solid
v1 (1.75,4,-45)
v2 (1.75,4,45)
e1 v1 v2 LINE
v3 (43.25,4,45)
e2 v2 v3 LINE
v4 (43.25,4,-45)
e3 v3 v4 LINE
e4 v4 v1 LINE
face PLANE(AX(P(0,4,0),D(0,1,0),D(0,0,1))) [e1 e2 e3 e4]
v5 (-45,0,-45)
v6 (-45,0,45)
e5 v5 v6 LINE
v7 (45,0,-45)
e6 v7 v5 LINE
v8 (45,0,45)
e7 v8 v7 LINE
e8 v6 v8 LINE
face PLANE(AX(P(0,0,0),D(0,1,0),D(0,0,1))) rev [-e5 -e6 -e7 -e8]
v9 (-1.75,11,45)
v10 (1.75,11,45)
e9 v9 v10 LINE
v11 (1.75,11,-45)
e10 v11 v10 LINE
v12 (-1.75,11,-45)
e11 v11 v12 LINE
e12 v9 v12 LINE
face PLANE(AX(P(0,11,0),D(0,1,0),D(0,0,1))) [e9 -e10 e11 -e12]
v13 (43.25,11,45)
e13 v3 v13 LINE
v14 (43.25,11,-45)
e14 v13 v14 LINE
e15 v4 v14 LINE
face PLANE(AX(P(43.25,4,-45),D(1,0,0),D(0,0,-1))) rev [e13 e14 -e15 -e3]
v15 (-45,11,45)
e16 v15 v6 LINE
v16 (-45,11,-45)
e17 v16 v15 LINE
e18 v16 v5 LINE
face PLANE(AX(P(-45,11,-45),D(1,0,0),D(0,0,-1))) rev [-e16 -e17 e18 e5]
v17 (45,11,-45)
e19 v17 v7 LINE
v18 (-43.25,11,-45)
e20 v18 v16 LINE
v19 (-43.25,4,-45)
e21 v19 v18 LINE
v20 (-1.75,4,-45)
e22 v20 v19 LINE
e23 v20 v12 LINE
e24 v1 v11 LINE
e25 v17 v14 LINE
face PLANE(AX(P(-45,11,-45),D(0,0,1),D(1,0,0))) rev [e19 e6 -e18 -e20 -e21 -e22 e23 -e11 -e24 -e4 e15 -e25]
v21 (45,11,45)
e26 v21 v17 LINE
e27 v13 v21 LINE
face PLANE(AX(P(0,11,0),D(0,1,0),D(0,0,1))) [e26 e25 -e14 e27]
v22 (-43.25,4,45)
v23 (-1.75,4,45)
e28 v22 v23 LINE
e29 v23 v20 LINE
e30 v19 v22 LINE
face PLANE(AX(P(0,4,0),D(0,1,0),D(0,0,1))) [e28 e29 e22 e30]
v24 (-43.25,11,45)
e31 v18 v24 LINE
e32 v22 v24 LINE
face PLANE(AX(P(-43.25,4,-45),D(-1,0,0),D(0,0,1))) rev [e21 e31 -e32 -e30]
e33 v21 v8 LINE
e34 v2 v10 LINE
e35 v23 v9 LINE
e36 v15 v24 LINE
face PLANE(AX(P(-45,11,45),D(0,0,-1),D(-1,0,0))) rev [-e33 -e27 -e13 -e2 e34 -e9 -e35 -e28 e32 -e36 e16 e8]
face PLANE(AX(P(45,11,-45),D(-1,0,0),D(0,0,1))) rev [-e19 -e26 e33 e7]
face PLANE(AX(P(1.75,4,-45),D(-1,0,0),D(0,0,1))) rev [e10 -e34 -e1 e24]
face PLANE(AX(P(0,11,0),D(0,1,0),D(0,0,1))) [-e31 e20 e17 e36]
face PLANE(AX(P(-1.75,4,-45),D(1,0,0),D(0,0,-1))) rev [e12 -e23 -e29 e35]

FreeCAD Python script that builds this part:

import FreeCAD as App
import Part
import Sketcher
Q = App.Units.Quantity


def add_polygon(sketch, points):
    """Adds a closed chain of lines whose ends are joined by coincident constraints."""
    first, n = sketch.GeometryCount, len(points)
    for a, b in zip(points, points[1:] + points[:1]):
        sketch.addGeometry(Part.LineSegment(App.Vector(*a, 0), App.Vector(*b, 0)), False)
    for i in range(n):
        sketch.addConstraint(Sketcher.Constraint("Coincident", first + i, 2, first + (i + 1) % n, 1))

doc = App.newDocument("Part")
body = doc.addObject("PartDesign::Body", "Body")

# Sketch on XZ plane
sketch1 = body.newObject("Sketcher::SketchObject", "Sketch")
sketch1.AttachmentSupport = (doc.getObject("XZ_Plane"), [""])
sketch1.MapMode = "FlatFace"
add_polygon(sketch1, [(-45, -45), (-45, 45), (45, 45), (45, -45)])  # lines 0-3
sketch1.addConstraint([
    Sketcher.Constraint("Vertical", 0),
    Sketcher.Constraint("Horizontal", 1),
    Sketcher.Constraint("Vertical", 2),
    Sketcher.Constraint("Horizontal", 3),
    Sketcher.Constraint("Symmetric", 0, 2, 2, 2, -1, 1),
    Sketcher.Constraint("Equal", 3, 0),
    Sketcher.Constraint("DistanceX", 1, 1, 1, 2, Q("90 mm")),
])
pad1 = body.newObject("PartDesign::Pad", "Pad")
pad1.Profile = sketch1
pad1.Length = 11
pad1.Reversed = True

# Sketch on XZ plane
sketch2 = body.newObject("Sketcher::SketchObject", "Sketch001")
sketch2.AttachmentSupport = (doc.getObject("XZ_Plane"), [""])
sketch2.MapMode = "FlatFace"
sketch2.AttachmentOffset = App.Placement(App.Vector(0, 0, -11), App.Rotation())
add_polygon(sketch2, [(-43, -45), (-43, 45), (-2, 45), (-2, -45)])  # lines 0-3
add_polygon(sketch2, [(2, -45), (2, 45), (43, 45), (43, -45)])  # lines 4-7
sketch2.addConstraint([
    Sketcher.Constraint("Vertical", 0),
    Sketcher.Constraint("Horizontal", 1),
    Sketcher.Constraint("Vertical", 2),
    Sketcher.Constraint("Horizontal", 3),
    Sketcher.Constraint("Vertical", 4),
    Sketcher.Constraint("Horizontal", 5),
    Sketcher.Constraint("Vertical", 6),
    Sketcher.Constraint("Horizontal", 7),
    Sketcher.Constraint("Symmetric", 2, 2, 4, 2, -1, 1),
    Sketcher.Constraint("Symmetric", 0, 2, 6, 2, -1, 1),
    Sketcher.Constraint("Horizontal", 1, 2, 4, 2),
    Sketcher.Constraint("DistanceY", 0, 1, 0, 2, Q("90 mm")),
    Sketcher.Constraint("DistanceX", 1, 1, 1, 2, Q("41.5 mm")),
    Sketcher.Constraint("DistanceX", 0, 2, 4, 2, Q("45 mm")),
])
pocket1 = body.newObject("PartDesign::Pocket", "Pocket")
pocket1.Profile = sketch2
pocket1.Length = 7
pocket1.Reversed = True

doc.recompute()
